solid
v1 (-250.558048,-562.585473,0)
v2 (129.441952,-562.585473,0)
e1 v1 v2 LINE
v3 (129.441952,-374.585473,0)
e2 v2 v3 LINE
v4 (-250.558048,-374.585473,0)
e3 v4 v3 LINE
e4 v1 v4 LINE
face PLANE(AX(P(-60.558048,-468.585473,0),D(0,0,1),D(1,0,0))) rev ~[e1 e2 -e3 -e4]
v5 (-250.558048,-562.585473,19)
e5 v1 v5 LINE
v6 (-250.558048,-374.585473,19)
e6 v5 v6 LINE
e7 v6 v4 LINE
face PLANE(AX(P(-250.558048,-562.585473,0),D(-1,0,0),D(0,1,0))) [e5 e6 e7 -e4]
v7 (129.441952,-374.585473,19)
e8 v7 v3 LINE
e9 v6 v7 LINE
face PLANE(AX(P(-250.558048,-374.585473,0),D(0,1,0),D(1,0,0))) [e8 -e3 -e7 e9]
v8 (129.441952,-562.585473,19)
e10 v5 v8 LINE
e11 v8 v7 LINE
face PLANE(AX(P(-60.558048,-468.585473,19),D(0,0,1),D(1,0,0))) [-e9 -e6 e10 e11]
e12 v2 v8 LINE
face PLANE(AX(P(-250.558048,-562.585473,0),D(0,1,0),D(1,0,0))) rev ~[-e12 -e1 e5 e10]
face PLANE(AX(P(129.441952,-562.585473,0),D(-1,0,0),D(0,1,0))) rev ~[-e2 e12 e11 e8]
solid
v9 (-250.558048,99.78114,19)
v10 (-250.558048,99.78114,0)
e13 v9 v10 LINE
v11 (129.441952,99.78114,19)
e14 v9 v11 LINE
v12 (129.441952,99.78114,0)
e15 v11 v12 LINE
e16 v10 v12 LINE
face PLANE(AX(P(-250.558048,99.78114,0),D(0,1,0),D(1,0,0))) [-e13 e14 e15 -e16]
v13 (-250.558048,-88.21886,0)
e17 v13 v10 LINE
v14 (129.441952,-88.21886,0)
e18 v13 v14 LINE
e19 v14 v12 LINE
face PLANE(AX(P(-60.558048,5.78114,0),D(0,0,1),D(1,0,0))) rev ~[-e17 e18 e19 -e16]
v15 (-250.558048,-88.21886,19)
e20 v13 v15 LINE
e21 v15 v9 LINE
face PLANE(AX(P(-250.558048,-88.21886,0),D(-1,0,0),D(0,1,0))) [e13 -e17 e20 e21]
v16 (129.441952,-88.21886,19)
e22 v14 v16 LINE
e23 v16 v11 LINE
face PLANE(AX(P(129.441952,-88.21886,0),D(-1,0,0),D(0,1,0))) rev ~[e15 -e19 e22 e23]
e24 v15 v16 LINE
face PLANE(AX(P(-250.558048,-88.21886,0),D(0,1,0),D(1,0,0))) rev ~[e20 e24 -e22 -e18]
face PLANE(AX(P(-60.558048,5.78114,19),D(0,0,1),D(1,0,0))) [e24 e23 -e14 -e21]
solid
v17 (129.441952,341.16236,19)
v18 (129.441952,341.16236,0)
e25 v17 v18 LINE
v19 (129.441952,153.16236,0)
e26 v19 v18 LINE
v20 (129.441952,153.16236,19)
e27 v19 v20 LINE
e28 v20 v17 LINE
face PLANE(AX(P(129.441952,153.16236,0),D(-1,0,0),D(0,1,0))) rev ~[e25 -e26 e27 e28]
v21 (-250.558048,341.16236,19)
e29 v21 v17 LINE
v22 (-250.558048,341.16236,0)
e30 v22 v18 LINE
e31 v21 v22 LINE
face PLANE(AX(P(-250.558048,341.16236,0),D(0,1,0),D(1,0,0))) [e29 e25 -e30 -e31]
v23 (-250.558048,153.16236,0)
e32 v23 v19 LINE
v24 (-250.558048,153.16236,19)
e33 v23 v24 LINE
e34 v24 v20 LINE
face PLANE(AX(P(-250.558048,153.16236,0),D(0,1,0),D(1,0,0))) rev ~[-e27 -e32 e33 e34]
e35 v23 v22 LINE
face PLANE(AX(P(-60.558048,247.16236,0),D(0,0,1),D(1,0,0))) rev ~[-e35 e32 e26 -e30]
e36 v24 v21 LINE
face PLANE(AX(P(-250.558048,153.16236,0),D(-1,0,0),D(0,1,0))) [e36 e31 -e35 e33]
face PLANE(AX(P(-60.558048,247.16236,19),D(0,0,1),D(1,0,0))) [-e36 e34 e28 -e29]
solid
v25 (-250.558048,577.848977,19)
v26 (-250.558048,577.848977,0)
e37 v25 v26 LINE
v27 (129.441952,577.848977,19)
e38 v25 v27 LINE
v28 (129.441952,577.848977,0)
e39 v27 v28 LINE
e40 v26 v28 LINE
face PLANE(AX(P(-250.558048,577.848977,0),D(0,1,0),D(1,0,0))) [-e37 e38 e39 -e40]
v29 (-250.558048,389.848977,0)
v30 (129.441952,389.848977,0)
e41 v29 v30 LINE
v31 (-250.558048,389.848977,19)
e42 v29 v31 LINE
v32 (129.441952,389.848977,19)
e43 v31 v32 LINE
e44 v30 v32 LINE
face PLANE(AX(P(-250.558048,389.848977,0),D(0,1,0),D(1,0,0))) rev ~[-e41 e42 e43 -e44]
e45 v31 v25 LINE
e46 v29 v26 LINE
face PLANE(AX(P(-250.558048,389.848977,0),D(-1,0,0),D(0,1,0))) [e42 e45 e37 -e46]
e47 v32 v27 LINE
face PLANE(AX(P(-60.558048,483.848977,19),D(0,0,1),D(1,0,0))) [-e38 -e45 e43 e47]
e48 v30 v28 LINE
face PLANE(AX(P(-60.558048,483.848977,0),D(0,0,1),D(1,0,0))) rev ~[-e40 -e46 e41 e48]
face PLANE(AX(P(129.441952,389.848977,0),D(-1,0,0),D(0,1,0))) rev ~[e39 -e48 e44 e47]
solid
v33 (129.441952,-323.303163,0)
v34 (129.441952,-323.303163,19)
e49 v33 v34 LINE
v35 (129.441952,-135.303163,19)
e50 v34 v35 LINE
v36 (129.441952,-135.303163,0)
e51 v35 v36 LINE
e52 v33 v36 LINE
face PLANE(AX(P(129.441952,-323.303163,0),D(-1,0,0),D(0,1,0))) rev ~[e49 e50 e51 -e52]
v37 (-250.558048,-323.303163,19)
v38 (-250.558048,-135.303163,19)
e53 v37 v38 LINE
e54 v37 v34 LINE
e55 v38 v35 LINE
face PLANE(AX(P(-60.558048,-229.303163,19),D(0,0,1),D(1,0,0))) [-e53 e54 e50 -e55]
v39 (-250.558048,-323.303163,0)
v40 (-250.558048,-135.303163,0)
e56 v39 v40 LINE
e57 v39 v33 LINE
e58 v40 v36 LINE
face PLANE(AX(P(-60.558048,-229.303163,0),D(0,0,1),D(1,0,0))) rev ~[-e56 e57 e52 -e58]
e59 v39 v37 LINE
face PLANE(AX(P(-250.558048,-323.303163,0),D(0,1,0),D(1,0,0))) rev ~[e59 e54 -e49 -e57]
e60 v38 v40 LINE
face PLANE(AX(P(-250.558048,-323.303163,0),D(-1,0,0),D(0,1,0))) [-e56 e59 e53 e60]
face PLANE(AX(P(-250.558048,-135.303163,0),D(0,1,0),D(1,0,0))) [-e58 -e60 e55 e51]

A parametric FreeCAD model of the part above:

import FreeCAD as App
import Part
import Sketcher

V = App.Vector
Q = App.Units.Quantity


def add_polygon(sketch, points):
    """Adds a closed chain of lines whose ends are joined by coincident constraints."""
    first, n = sketch.GeometryCount, len(points)
    for a, b in zip(points, points[1:] + points[:1]):
        sketch.addGeometry(Part.LineSegment(App.Vector(*a, 0), App.Vector(*b, 0)), False)
    for i in range(n):
        sketch.addConstraint(Sketcher.Constraint("Coincident", first + i, 2, first + (i + 1) % n, 1))

doc = App.newDocument("Part")
body = doc.addObject("PartDesign::Body", "Body")

# Sketch on XY plane
sketch1 = body.newObject("Sketcher::SketchObject", "Sketch")
sketch1.AttachmentSupport = (doc.getObject("XY_Plane"), [""])
sketch1.MapMode = "FlatFace"
add_polygon(sketch1, [(-251, 341), (-251, 153), (129, 153), (129, 341)])  # lines 0-3
sketch1.addConstraint([
    Sketcher.Constraint("Vertical", 0),
    Sketcher.Constraint("Horizontal", 1),
    Sketcher.Constraint("Vertical", 2),
    Sketcher.Constraint("Horizontal", 3),
    Sketcher.Constraint("DistanceX", 1, 1, 1, 2, Q("380 mm")),
    Sketcher.Constraint("DistanceY", 0, 2, 0, 1, Q("188 mm")),
    Sketcher.Constraint("DistanceX", 0, 2, -1, 1, Q("250.558048 mm")),
    Sketcher.Constraint("DistanceY", -1, 1, 0, 2, Q("153.16236 mm")),
])
pad1 = body.newObject("PartDesign::Pad", "Pad")
pad1.Profile = sketch1
pad1.Length = 19

# Sketch on XY plane
sketch2 = body.newObject("Sketcher::SketchObject", "Sketch001")
sketch2.AttachmentSupport = (doc.getObject("XY_Plane"), [""])
sketch2.MapMode = "FlatFace"
add_polygon(sketch2, [(-251, 341), (-251, 153), (129, 153), (129, 341)])  # lines 0-3
sketch2.addConstraint([
    Sketcher.Constraint("Vertical", 0),
    Sketcher.Constraint("Horizontal", 1),
    Sketcher.Constraint("Vertical", 2),
    Sketcher.Constraint("Horizontal", 3),
    Sketcher.Constraint("DistanceX", 1, 1, 1, 2, Q("380 mm")),
    Sketcher.Constraint("DistanceY", 0, 2, 0, 1, Q("188 mm")),
    Sketcher.Constraint("DistanceX", 0, 2, -1, 1, Q("250.558048 mm")),
    Sketcher.Constraint("DistanceY", -1, 1, 0, 2, Q("153.16236 mm")),
])
pad2 = body.newObject("PartDesign::Pad", "Pad001")
pad2.Profile = sketch2
pad2.Length = 18
body2 = doc.addObject("PartDesign::Body", "Body001")

# Sketch on XY plane
sketch3 = body2.newObject("Sketcher::SketchObject", "Sketch002")
sketch3.AttachmentSupport = (doc.getObject("XY_Plane001"), [""])
sketch3.MapMode = "FlatFace"
add_polygon(sketch3, [(-251, 578), (-251, 390), (129, 390), (129, 578)])  # lines 0-3
sketch3.addConstraint([
    Sketcher.Constraint("Vertical", 0),
    Sketcher.Constraint("Horizontal", 1),
    Sketcher.Constraint("Vertical", 2),
    Sketcher.Constraint("Horizontal", 3),
    Sketcher.Constraint("DistanceX", 1, 1, 1, 2, Q("380 mm")),
    Sketcher.Constraint("DistanceY", 0, 2, 0, 1, Q("188 mm")),
    Sketcher.Constraint("DistanceX", 0, 2, -1, 1, Q("250.558048 mm")),
    Sketcher.Constraint("DistanceY", -1, 1, 0, 2, Q("389.848977 mm")),
])
pad3 = body2.newObject("PartDesign::Pad", "Pad002")
pad3.Profile = sketch3
pad3.Length = 19

# Sketch on XY plane
sketch4 = body2.newObject("Sketcher::SketchObject", "Sketch003")
sketch4.AttachmentSupport = (doc.getObject("XY_Plane001"), [""])
sketch4.MapMode = "FlatFace"
add_polygon(sketch4, [(-251, 578), (-251, 390), (129, 390), (129, 578)])  # lines 0-3
sketch4.addConstraint([
    Sketcher.Constraint("Vertical", 0),
    Sketcher.Constraint("Horizontal", 1),
    Sketcher.Constraint("Vertical", 2),
    Sketcher.Constraint("Horizontal", 3),
    Sketcher.Constraint("DistanceX", 1, 1, 1, 2, Q("380 mm")),
    Sketcher.Constraint("DistanceY", 0, 2, 0, 1, Q("188 mm")),
    Sketcher.Constraint("DistanceX", 0, 2, -1, 1, Q("250.558048 mm")),
    Sketcher.Constraint("DistanceY", -1, 1, 0, 2, Q("389.848977 mm")),
])
pad4 = body2.newObject("PartDesign::Pad", "Pad003")
pad4.Profile = sketch4
pad4.Length = 18
body3 = doc.addObject("PartDesign::Body", "Body002")

# Sketch on XY plane
sketch5 = body3.newObject("Sketcher::SketchObject", "Sketch004")
sketch5.AttachmentSupport = (doc.getObject("XY_Plane002"), [""])
sketch5.MapMode = "FlatFace"
add_polygon(sketch5, [(-251, 100), (-251, -88), (129, -88), (129, 100)])  # lines 0-3
sketch5.addConstraint([
    Sketcher.Constraint("Vertical", 0),
    Sketcher.Constraint("Horizontal", 1),
    Sketcher.Constraint("Vertical", 2),
    Sketcher.Constraint("Horizontal", 3),
    Sketcher.Constraint("DistanceX", 1, 1, 1, 2, Q("380 mm")),
    Sketcher.Constraint("DistanceY", 0, 2, 0, 1, Q("188 mm")),
    Sketcher.Constraint("DistanceX", 0, 2, -1, 1, Q("250.558048 mm")),
    Sketcher.Constraint("DistanceY", 0, 2, -1, 1, Q("88.21886 mm")),
])
pad5 = body3.newObject("PartDesign::Pad", "Pad004")
pad5.Profile = sketch5
pad5.Length = 19

# Sketch on XY plane
sketch6 = body3.newObject("Sketcher::SketchObject", "Sketch005")
sketch6.AttachmentSupport = (doc.getObject("XY_Plane002"), [""])
sketch6.MapMode = "FlatFace"
add_polygon(sketch6, [(-251, 100), (-251, -88), (129, -88), (129, 100)])  # lines 0-3
sketch6.addConstraint([
    Sketcher.Constraint("Vertical", 0),
    Sketcher.Constraint("Horizontal", 1),
    Sketcher.Constraint("Vertical", 2),
    Sketcher.Constraint("Horizontal", 3),
    Sketcher.Constraint("DistanceX", 1, 1, 1, 2, Q("380 mm")),
    Sketcher.Constraint("DistanceY", 0, 2, 0, 1, Q("188 mm")),
    Sketcher.Constraint("DistanceX", 0, 2, -1, 1, Q("250.558048 mm")),
    Sketcher.Constraint("DistanceY", 0, 2, -1, 1, Q("88.21886 mm")),
])
pad6 = body3.newObject("PartDesign::Pad", "Pad005")
pad6.Profile = sketch6
pad6.Length = 18
body4 = doc.addObject("PartDesign::Body", "Body003")

# Sketch on XY plane
sketch7 = body4.newObject("Sketcher::SketchObject", "Sketch006")
sketch7.AttachmentSupport = (doc.getObject("XY_Plane003"), [""])
sketch7.MapMode = "FlatFace"
add_polygon(sketch7, [(-251, -135), (-251, -323), (129, -323), (129, -135)])  # lines 0-3
sketch7.addConstraint([
    Sketcher.Constraint("Vertical", 0),
    Sketcher.Constraint("Horizontal", 1),
    Sketcher.Constraint("Vertical", 2),
    Sketcher.Constraint("Horizontal", 3),
    Sketcher.Constraint("DistanceX", 1, 1, 1, 2, Q("380 mm")),
    Sketcher.Constraint("DistanceY", 0, 2, 0, 1, Q("188 mm")),
    Sketcher.Constraint("DistanceX", 0, 2, -1, 1, Q("250.558048 mm")),
    Sketcher.Constraint("DistanceY", 0, 2, -1, 1, Q("323.303163 mm")),
])
pad7 = body4.newObject("PartDesign::Pad", "Pad006")
pad7.Profile = sketch7
pad7.Length = 19

# Sketch on XY plane
sketch8 = body4.newObject("Sketcher::SketchObject", "Sketch007")
sketch8.AttachmentSupport = (doc.getObject("XY_Plane003"), [""])
sketch8.MapMode = "FlatFace"
add_polygon(sketch8, [(-251, -135), (-251, -323), (129, -323), (129, -135)])  # lines 0-3
sketch8.addConstraint([
    Sketcher.Constraint("Vertical", 0),
    Sketcher.Constraint("Horizontal", 1),
    Sketcher.Constraint("Vertical", 2),
    Sketcher.Constraint("Horizontal", 3),
    Sketcher.Constraint("DistanceX", 1, 1, 1, 2, Q("380 mm")),
    Sketcher.Constraint("DistanceY", 0, 2, 0, 1, Q("188 mm")),
    Sketcher.Constraint("DistanceX", 0, 2, -1, 1, Q("250.558048 mm")),
    Sketcher.Constraint("DistanceY", 0, 2, -1, 1, Q("323.303163 mm")),
])
pad8 = body4.newObject("PartDesign::Pad", "Pad007")
pad8.Profile = sketch8
pad8.Length = 18
body5 = doc.addObject("PartDesign::Body", "Body004")

# Sketch on XY plane
sketch9 = body5.newObject("Sketcher::SketchObject", "Sketch008")
sketch9.AttachmentSupport = (doc.getObject("XY_Plane004"), [""])
sketch9.MapMode = "FlatFace"
add_polygon(sketch9, [(-251, -375), (-251, -563), (129, -563), (129, -375)])  # lines 0-3
sketch9.addConstraint([
    Sketcher.Constraint("Vertical", 0),
    Sketcher.Constraint("Horizontal", 1),
    Sketcher.Constraint("Vertical", 2),
    Sketcher.Constraint("Horizontal", 3),
    Sketcher.Constraint("DistanceX", 1, 1, 1, 2, Q("380 mm")),
    Sketcher.Constraint("DistanceY", 0, 2, 0, 1, Q("188 mm")),
    Sketcher.Constraint("DistanceX", 0, 2, -1, 1, Q("250.558048 mm")),
    Sketcher.Constraint("DistanceY", 0, 2, -1, 1, Q("562.585473 mm")),
])
pad9 = body5.newObject("PartDesign::Pad", "Pad008")
pad9.Profile = sketch9
pad9.Length = 19

# Sketch on XY plane
sketch10 = body5.newObject("Sketcher::SketchObject", "Sketch009")
sketch10.AttachmentSupport = (doc.getObject("XY_Plane004"), [""])
sketch10.MapMode = "FlatFace"
add_polygon(sketch10, [(-251, -375), (-251, -563), (129, -563), (129, -375)])  # lines 0-3
sketch10.addConstraint([
    Sketcher.Constraint("Vertical", 0),
    Sketcher.Constraint("Horizontal", 1),
    Sketcher.Constraint("Vertical", 2),
    Sketcher.Constraint("Horizontal", 3),
    Sketcher.Constraint("DistanceX", 1, 1, 1, 2, Q("380 mm")),
    Sketcher.Constraint("DistanceY", 0, 2, 0, 1, Q("188 mm")),
    Sketcher.Constraint("DistanceX", 0, 2, -1, 1, Q("250.558048 mm")),
    Sketcher.Constraint("DistanceY", 0, 2, -1, 1, Q("562.585473 mm")),
])
pad10 = body5.newObject("PartDesign::Pad", "Pad009")
pad10.Profile = sketch10
pad10.Length = 18

doc.recompute()
